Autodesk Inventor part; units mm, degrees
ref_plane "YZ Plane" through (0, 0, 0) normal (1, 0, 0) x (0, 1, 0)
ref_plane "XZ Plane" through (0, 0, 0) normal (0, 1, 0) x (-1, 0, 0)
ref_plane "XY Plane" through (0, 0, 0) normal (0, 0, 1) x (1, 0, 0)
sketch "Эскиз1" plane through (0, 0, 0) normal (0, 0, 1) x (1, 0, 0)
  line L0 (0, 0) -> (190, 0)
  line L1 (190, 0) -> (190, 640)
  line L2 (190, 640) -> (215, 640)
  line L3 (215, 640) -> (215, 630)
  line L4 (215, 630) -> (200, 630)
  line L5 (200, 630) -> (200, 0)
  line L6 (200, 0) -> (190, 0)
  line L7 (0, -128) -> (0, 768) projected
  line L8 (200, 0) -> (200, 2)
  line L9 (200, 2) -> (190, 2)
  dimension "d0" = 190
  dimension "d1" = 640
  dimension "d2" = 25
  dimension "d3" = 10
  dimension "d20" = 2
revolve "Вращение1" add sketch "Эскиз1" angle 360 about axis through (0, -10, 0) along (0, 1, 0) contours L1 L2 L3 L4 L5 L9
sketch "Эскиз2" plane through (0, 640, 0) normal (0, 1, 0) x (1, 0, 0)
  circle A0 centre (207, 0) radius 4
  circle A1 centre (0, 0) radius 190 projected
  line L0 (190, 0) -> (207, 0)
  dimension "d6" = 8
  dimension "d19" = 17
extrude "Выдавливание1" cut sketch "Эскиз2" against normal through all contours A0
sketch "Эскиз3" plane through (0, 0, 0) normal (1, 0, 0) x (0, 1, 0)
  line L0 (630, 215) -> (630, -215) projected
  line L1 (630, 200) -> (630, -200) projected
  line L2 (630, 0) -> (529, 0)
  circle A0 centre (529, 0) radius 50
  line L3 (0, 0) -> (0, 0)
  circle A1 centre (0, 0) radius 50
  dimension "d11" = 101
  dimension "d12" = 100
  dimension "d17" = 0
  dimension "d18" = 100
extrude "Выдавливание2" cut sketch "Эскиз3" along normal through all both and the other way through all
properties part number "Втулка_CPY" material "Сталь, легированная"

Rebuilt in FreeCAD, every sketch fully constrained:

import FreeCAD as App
import Part
import Sketcher

V = App.Vector
Q = App.Units.Quantity

doc = App.newDocument("Part")
body = doc.addObject("PartDesign::Body", "Body")

# Sketch on XY plane
sketch1 = body.newObject("Sketcher::SketchObject", "Sketch")
sketch1.AttachmentSupport = (doc.getObject("XY_Plane"), [""])
sketch1.MapMode = "FlatFace"
sketch1.addGeometry(Part.LineSegment(V(190, 640, 0), V(190, 2, 0)), False)
sketch1.addGeometry(Part.LineSegment(V(190, 2, 0), V(200, 2, 0)), False)
sketch1.addGeometry(Part.LineSegment(V(200, 2, 0), V(200, 630, 0)), False)
sketch1.addGeometry(Part.LineSegment(V(200, 630, 0), V(215, 630, 0)), False)
sketch1.addGeometry(Part.LineSegment(V(215, 630, 0), V(215, 640, 0)), False)
sketch1.addGeometry(Part.LineSegment(V(215, 640, 0), V(190, 640, 0)), False)
sketch1.addConstraint(Sketcher.Constraint("Coincident", 0, 2, 1, 1))
sketch1.addConstraint(Sketcher.Constraint("Coincident", 1, 2, 2, 1))
sketch1.addConstraint(Sketcher.Constraint("Coincident", 2, 2, 3, 1))
sketch1.addConstraint(Sketcher.Constraint("Coincident", 3, 2, 4, 1))
sketch1.addConstraint(Sketcher.Constraint("Coincident", 4, 2, 5, 1))
sketch1.addConstraint(Sketcher.Constraint("Coincident", 5, 2, 0, 1))
sketch1.addConstraint(Sketcher.Constraint("Vertical", 0))
sketch1.addConstraint(Sketcher.Constraint("Horizontal", 1))
sketch1.addConstraint(Sketcher.Constraint("Vertical", 2))
sketch1.addConstraint(Sketcher.Constraint("Horizontal", 3))
sketch1.addConstraint(Sketcher.Constraint("Vertical", 4))
sketch1.addConstraint(Sketcher.Constraint("Horizontal", 5))
sketch1.addConstraint(Sketcher.Constraint("Equal", 1, 4))
sketch1.addConstraint(Sketcher.Constraint("DistanceX", 1, 1, 1, 2, Q("10 mm")))
sketch1.addConstraint(Sketcher.Constraint("DistanceX", 5, 2, 5, 1, Q("25 mm")))
sketch1.addConstraint(Sketcher.Constraint("DistanceX", -1, 1, 0, 2, Q("190 mm")))
sketch1.addConstraint(Sketcher.Constraint("DistanceY", -1, 1, 0, 2, Q("2 mm")))
sketch1.addConstraint(Sketcher.Constraint("DistanceY", -1, 1, 4, 2, Q("640 mm")))
revolution = body.newObject("PartDesign::Revolution", "Revolution")
revolution.Profile = sketch1
revolution.ReferenceAxis = (sketch1, ["V_Axis"])
revolution.Angle = 360

# Sketch on XZ plane
sketch2 = body.newObject("Sketcher::SketchObject", "Sketch001")
sketch2.AttachmentSupport = (doc.getObject("XZ_Plane"), [""])
sketch2.MapMode = "FlatFace"
sketch2.AttachmentOffset = App.Placement(V(0, 0, -640), App.Rotation())
sketch2.addGeometry(Part.Circle(V(207, 0, 0), V(0, 0, 1), 4), False)
sketch2.addConstraint(Sketcher.Constraint("PointOnObject", 0, 3, -1))
sketch2.addConstraint(Sketcher.Constraint("Diameter", 0, Q("8 mm")))
sketch2.addConstraint(Sketcher.Constraint("DistanceX", -1, 1, 0, 3, Q("207 mm")))
pocket1 = body.newObject("PartDesign::Pocket", "Pocket")
pocket1.Profile = sketch2
pocket1.Type = "ThroughAll"
pocket1.Reversed = True

# Sketch on YZ plane
sketch3 = body.newObject("Sketcher::SketchObject", "Sketch002")
sketch3.AttachmentSupport = (doc.getObject("YZ_Plane"), [""])
sketch3.MapMode = "FlatFace"
sketch3.addGeometry(Part.Circle(V(529, 0, 0), V(0, 0, 1), 50), False)
sketch3.addGeometry(Part.Circle(V(0, 0, 0), V(0, 0, 1), 50), False)
sketch3.addConstraint(Sketcher.Constraint("Coincident", 1, 3, -1, 1))
sketch3.addConstraint(Sketcher.Constraint("Equal", 0, 1))
sketch3.addConstraint(Sketcher.Constraint("PointOnObject", 0, 3, -1))
sketch3.addConstraint(Sketcher.Constraint("Diameter", 0, Q("100 mm")))
sketch3.addConstraint(Sketcher.Constraint("DistanceX", -1, 1, 0, 3, Q("529 mm")))
pocket2 = body.newObject("PartDesign::Pocket", "Pocket001")
pocket2.Profile = sketch3
pocket2.Type = "ThroughAll"
pocket2.Midplane = True

doc.recompute()
